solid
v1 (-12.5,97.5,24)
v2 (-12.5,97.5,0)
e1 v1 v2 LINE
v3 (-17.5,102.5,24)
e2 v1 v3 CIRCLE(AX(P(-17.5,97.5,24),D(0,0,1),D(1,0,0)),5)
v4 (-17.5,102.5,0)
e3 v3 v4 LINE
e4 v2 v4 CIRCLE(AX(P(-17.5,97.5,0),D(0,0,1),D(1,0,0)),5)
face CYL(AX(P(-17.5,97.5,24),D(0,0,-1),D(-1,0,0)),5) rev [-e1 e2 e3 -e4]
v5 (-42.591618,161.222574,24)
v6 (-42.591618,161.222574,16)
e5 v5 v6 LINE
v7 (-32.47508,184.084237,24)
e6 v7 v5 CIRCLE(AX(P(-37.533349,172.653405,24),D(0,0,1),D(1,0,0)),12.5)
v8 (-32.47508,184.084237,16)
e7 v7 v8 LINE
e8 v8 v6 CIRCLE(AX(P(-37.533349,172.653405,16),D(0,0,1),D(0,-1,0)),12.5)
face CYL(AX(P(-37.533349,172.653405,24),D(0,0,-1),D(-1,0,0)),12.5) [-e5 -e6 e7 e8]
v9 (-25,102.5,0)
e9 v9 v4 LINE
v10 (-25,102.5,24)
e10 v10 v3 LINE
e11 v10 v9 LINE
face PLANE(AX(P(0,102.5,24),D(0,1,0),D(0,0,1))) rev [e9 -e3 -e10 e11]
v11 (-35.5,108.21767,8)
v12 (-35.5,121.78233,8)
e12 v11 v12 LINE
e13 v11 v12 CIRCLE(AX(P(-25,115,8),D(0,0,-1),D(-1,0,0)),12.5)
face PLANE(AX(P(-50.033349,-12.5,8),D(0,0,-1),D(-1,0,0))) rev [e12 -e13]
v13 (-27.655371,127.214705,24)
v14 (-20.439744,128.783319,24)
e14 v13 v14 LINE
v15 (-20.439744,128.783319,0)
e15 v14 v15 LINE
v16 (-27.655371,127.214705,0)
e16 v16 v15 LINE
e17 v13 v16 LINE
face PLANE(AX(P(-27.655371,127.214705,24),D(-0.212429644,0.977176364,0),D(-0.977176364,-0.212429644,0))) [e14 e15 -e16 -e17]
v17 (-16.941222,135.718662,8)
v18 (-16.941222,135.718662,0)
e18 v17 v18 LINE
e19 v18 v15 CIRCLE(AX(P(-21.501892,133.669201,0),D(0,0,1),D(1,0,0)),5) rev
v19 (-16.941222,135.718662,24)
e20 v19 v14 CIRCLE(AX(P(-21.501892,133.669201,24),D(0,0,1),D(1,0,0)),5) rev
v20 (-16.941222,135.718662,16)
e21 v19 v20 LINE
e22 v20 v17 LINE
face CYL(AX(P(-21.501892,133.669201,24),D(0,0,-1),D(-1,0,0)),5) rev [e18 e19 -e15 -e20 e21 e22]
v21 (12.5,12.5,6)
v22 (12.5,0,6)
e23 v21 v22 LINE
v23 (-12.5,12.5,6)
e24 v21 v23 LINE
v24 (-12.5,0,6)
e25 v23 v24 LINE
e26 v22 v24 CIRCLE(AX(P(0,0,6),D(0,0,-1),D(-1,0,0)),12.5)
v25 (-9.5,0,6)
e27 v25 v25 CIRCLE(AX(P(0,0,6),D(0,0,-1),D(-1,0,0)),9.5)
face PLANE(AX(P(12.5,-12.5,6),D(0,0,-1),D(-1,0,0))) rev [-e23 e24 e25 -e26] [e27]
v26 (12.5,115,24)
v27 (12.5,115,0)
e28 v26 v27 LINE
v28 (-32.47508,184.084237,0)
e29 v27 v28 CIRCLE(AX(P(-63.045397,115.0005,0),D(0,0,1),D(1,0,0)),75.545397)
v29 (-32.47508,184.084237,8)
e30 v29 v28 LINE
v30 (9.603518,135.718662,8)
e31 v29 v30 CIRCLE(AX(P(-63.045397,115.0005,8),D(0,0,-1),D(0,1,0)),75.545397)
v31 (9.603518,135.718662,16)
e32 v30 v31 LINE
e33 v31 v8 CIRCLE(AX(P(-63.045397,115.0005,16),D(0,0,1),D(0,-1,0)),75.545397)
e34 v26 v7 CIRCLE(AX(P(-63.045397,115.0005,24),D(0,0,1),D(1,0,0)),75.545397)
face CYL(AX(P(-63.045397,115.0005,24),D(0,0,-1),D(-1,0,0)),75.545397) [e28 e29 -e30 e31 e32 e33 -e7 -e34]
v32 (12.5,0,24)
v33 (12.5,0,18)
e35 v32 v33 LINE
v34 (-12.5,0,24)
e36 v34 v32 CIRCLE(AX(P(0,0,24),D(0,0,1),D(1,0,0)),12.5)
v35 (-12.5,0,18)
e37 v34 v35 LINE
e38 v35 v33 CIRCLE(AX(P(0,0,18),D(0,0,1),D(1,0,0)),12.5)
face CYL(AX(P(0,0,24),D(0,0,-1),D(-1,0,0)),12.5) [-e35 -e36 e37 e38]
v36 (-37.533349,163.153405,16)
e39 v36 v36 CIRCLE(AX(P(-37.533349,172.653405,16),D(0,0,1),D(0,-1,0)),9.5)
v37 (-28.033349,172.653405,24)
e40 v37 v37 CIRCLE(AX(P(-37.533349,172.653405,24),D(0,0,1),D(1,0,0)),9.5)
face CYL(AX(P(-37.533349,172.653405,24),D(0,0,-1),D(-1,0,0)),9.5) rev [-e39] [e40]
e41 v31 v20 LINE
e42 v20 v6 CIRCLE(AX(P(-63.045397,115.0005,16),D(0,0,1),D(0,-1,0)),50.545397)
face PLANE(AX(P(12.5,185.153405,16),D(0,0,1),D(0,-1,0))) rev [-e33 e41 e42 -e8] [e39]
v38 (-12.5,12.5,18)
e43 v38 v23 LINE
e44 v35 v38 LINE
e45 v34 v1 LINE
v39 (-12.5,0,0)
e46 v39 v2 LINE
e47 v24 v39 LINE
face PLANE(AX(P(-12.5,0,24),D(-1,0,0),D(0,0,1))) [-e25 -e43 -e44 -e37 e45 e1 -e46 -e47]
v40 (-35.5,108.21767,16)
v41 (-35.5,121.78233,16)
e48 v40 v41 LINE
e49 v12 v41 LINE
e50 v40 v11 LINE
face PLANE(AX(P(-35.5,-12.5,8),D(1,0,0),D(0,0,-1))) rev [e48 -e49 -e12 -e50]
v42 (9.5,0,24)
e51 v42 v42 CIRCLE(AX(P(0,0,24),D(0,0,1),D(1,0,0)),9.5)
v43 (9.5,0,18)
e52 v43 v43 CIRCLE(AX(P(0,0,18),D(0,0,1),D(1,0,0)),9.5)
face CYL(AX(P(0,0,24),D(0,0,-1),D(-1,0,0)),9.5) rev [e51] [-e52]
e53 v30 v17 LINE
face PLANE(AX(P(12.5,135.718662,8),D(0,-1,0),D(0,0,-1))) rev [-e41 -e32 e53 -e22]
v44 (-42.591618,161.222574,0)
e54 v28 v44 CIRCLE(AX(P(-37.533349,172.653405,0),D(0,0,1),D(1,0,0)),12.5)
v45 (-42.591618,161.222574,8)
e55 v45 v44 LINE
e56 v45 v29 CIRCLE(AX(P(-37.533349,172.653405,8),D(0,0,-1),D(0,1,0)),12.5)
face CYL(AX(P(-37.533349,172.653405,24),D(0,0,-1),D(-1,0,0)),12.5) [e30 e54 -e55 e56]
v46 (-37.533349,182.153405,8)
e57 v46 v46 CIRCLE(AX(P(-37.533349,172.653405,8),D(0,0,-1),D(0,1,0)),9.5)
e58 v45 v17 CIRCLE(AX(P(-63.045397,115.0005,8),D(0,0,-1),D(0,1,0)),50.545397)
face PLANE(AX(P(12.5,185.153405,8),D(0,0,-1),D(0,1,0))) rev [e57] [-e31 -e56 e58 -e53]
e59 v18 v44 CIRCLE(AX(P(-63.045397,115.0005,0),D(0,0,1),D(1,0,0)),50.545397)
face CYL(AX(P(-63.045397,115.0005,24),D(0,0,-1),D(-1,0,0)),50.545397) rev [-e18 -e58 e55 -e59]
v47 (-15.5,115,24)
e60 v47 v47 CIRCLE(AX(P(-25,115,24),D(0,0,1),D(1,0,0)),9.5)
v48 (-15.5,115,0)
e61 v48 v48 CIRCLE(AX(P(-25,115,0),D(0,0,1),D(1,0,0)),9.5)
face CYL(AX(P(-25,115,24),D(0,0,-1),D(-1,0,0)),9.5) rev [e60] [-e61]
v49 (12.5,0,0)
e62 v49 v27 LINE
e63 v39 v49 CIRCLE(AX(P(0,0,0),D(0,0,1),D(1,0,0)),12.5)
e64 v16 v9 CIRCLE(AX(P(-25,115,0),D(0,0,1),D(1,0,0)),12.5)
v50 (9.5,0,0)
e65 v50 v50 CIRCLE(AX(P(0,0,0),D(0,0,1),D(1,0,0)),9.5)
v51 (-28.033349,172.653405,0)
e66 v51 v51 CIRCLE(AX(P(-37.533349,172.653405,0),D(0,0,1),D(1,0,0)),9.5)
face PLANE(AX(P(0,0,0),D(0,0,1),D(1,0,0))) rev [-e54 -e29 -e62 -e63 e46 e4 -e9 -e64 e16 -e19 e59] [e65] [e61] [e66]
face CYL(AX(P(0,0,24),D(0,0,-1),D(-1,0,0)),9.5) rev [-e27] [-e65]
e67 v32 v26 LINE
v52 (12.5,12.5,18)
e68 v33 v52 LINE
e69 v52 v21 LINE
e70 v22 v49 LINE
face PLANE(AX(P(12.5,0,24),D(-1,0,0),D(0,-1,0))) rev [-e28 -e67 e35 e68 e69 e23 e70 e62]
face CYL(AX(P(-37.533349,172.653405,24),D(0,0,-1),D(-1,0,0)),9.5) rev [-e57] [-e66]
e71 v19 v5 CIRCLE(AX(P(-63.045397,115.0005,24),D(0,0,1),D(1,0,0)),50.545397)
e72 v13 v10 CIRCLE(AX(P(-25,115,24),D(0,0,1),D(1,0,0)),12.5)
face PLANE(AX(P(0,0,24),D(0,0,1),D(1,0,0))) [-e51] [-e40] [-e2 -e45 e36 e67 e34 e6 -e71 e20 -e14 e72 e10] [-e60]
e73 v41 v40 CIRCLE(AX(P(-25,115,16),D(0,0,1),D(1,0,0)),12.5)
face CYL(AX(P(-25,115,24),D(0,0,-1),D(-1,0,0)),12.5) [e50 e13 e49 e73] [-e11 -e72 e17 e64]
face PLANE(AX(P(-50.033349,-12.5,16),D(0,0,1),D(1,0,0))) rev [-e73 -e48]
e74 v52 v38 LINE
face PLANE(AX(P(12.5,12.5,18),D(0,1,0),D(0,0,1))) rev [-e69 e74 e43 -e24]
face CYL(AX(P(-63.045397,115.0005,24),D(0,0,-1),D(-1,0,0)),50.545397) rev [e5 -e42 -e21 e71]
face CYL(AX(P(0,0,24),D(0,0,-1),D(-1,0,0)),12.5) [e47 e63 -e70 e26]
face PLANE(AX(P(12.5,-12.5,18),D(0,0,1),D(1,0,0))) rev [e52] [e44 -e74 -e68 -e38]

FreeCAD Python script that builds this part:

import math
import FreeCAD as App
import Part
import Sketcher

doc = App.newDocument("Part")
body = doc.addObject("PartDesign::Body", "Body")

# Sketch on XY plane
sketch1 = body.newObject("Sketcher::SketchObject", "Sketch")
sketch1.AttachmentSupport = (doc.getObject("XY_Plane"), [""])
sketch1.MapMode = "FlatFace"
sketch1.addGeometry(Part.ArcOfCircle(Part.Circle(App.Vector(-38, 173, 0), App.Vector(0, 0, 1), 12), math.radians(66), math.radians(246)), False)
sketch1.addGeometry(Part.ArcOfCircle(Part.Circle(App.Vector(-63, 115, 0), App.Vector(0, 0, 1), 51), math.radians(24), math.radians(66)), False)
sketch1.addGeometry(Part.ArcOfCircle(Part.Circle(App.Vector(-22, 134, 0), App.Vector(0, 0, 1), 5), math.radians(-78), math.radians(24)), False)
sketch1.addGeometry(Part.LineSegment(App.Vector(-20, 129, 0), App.Vector(-28, 127, 0)), False)
sketch1.addGeometry(Part.ArcOfCircle(Part.Circle(App.Vector(-25, 115, 0), App.Vector(0, 0, 1), 12), math.radians(102), math.radians(270)), False)
sketch1.addGeometry(Part.LineSegment(App.Vector(-25, 102, 0), App.Vector(-18, 102, 0)), False)
sketch1.addGeometry(Part.ArcOfCircle(Part.Circle(App.Vector(-18, 98, 0), App.Vector(0, 0, 1), 5), math.radians(0), math.radians(90)), False)
sketch1.addGeometry(Part.LineSegment(App.Vector(-12, 98, 0), App.Vector(-12, 0, 0)), False)
sketch1.addGeometry(Part.ArcOfCircle(Part.Circle(App.Vector(0, 0, 0), App.Vector(0, 0, 1), 12), math.radians(180), math.radians(360)), False)
sketch1.addGeometry(Part.LineSegment(App.Vector(12, 0, 0), App.Vector(12, 115, 0)), False)
sketch1.addGeometry(Part.ArcOfCircle(Part.Circle(App.Vector(-63, 115, 0), App.Vector(0, 0, 1), 76), math.radians(0), math.radians(66)), False)
sketch1.addGeometry(Part.Circle(App.Vector(-38, 173, 0), App.Vector(0, 0, 1), 10), False)
sketch1.addGeometry(Part.Circle(App.Vector(0, 0, 0), App.Vector(0, 0, 1), 10), False)
sketch1.addGeometry(Part.Circle(App.Vector(-25, 115, 0), App.Vector(0, 0, 1), 10), False)
sketch1.addConstraint(Sketcher.Constraint("Tangent", 0, 2, 1, 2))
sketch1.addConstraint(Sketcher.Constraint("Tangent", 1, 1, 2, 2))
sketch1.addConstraint(Sketcher.Constraint("Tangent", 2, 1, 3, 1))
sketch1.addConstraint(Sketcher.Constraint("Tangent", 3, 2, 4, 1))
sketch1.addConstraint(Sketcher.Constraint("Tangent", 4, 2, 5, 1))
sketch1.addConstraint(Sketcher.Constraint("Tangent", 5, 2, 6, 2))
sketch1.addConstraint(Sketcher.Constraint("Tangent", 6, 1, 7, 1))
sketch1.addConstraint(Sketcher.Constraint("Tangent", 7, 2, 8, 1))
sketch1.addConstraint(Sketcher.Constraint("Tangent", 8, 2, 9, 1))
sketch1.addConstraint(Sketcher.Constraint("Coincident", 9, 2, 10, 1))
sketch1.addConstraint(Sketcher.Constraint("Tangent", 10, 2, 0, 1))
sketch1.addConstraint(Sketcher.Constraint("Horizontal", 5))
sketch1.addConstraint(Sketcher.Constraint("Vertical", 7))
sketch1.addConstraint(Sketcher.Constraint("Vertical", 9))
sketch1.addConstraint(Sketcher.Constraint("Coincident", 8, 3, -1, 1))
sketch1.addConstraint(Sketcher.Constraint("Coincident", 12, 3, -1, 1))
sketch1.addConstraint(Sketcher.Constraint("Coincident", 10, 3, 1, 3))
sketch1.addConstraint(Sketcher.Constraint("Coincident", 11, 3, 0, 3))
sketch1.addConstraint(Sketcher.Constraint("Coincident", 13, 3, 4, 3))
sketch1.addConstraint(Sketcher.Constraint("Equal", 0, 4))
sketch1.addConstraint(Sketcher.Constraint("Equal", 2, 6))
sketch1.addConstraint(Sketcher.Constraint("Equal", 4, 8))
sketch1.addConstraint(Sketcher.Constraint("Equal", 11, 12))
sketch1.addConstraint(Sketcher.Constraint("Equal", 12, 13))
sketch1.addConstraint(Sketcher.Constraint("Horizontal", 13, 3, 9, 2))
sketch1.addConstraint(Sketcher.Constraint("Diameter", 11, 19.0))
sketch1.addConstraint(Sketcher.Constraint("Radius", 2, 5.0))
sketch1.addConstraint(Sketcher.Constraint("Radius", 0, 12.5))
sketch1.addConstraint(Sketcher.Constraint("DistanceY", 9, 1, 9, 2, 115.0))
sketch1.addConstraint(Sketcher.Constraint("DistanceX", 5, 1, 5, 2, 7.5))
sketch1.addConstraint(Sketcher.Constraint("Radius", 1, 50.545397))
sketch1.addConstraint(Sketcher.Constraint("DistanceY", -1, 1, 1, 3, 115.0005))
sketch1.addConstraint(Sketcher.Constraint("DistanceY", -1, 1, 2, 3, 133.669201))
sketch1.addConstraint(Sketcher.Constraint("DistanceX", 0, 3, -1, 1, 37.533349))
pad1 = body.newObject("PartDesign::Pad", "Pad")
pad1.Profile = sketch1
pad1.Length = 24

# Sketch on YZ plane
sketch2 = body.newObject("Sketcher::SketchObject", "Sketch001")
sketch2.AttachmentSupport = (doc.getObject("YZ_Plane"), [""])
sketch2.MapMode = "FlatFace"
sketch2.AttachmentOffset = App.Placement(App.Vector(0, 0, -12.5), App.Rotation())
sketch2.addGeometry(Part.LineSegment(App.Vector(185, 8, 0), App.Vector(136, 8, 0)), False)
sketch2.addGeometry(Part.LineSegment(App.Vector(136, 8, 0), App.Vector(136, 16, 0)), False)
sketch2.addGeometry(Part.LineSegment(App.Vector(136, 16, 0), App.Vector(185, 16, 0)), False)
sketch2.addGeometry(Part.LineSegment(App.Vector(185, 16, 0), App.Vector(185, 8, 0)), False)
sketch2.addConstraint(Sketcher.Constraint("Coincident", 0, 2, 1, 1))
sketch2.addConstraint(Sketcher.Constraint("Coincident", 1, 2, 2, 1))
sketch2.addConstraint(Sketcher.Constraint("Coincident", 2, 2, 3, 1))
sketch2.addConstraint(Sketcher.Constraint("Coincident", 3, 2, 0, 1))
sketch2.addConstraint(Sketcher.Constraint("Horizontal", 0))
sketch2.addConstraint(Sketcher.Constraint("Vertical", 1))
sketch2.addConstraint(Sketcher.Constraint("Horizontal", 2))
sketch2.addConstraint(Sketcher.Constraint("Vertical", 3))
sketch2.addConstraint(Sketcher.Constraint("DistanceY", 1, 1, 1, 2, 8.0))
sketch2.addConstraint(Sketcher.Constraint("DistanceY", -1, 1, 0, 2, 8.0))
sketch2.addConstraint(Sketcher.Constraint("DistanceX", 0, 2, 0, 1, 49.434744))
sketch2.addConstraint(Sketcher.Constraint("DistanceX", -1, 1, 0, 2, 135.718662))
pocket1 = body.newObject("PartDesign::Pocket", "Pocket")
pocket1.Profile = sketch2
pocket1.Type = "ThroughAll"
pocket1.Midplane = True

# Sketch on YZ plane
sketch3 = body.newObject("Sketcher::SketchObject", "Sketch002")
sketch3.AttachmentSupport = (doc.getObject("YZ_Plane"), [""])
sketch3.MapMode = "FlatFace"
sketch3.AttachmentOffset = App.Placement(App.Vector(0, 0, -12.5), App.Rotation())
sketch3.addGeometry(Part.LineSegment(App.Vector(12, 6, 0), App.Vector(-12, 6, 0)), False)
sketch3.addGeometry(Part.LineSegment(App.Vector(-12, 6, 0), App.Vector(-12, 18, 0)), False)
sketch3.addGeometry(Part.LineSegment(App.Vector(-12, 18, 0), App.Vector(12, 18, 0)), False)
sketch3.addGeometry(Part.LineSegment(App.Vector(12, 18, 0), App.Vector(12, 6, 0)), False)
sketch3.addConstraint(Sketcher.Constraint("Coincident", 0, 2, 1, 1))
sketch3.addConstraint(Sketcher.Constraint("Coincident", 1, 2, 2, 1))
sketch3.addConstraint(Sketcher.Constraint("Coincident", 2, 2, 3, 1))
sketch3.addConstraint(Sketcher.Constraint("Coincident", 3, 2, 0, 1))
sketch3.addConstraint(Sketcher.Constraint("Horizontal", 0))
sketch3.addConstraint(Sketcher.Constraint("Vertical", 1))
sketch3.addConstraint(Sketcher.Constraint("Horizontal", 2))
sketch3.addConstraint(Sketcher.Constraint("Vertical", 3))
sketch3.addConstraint(Sketcher.Constraint("DistanceX", 0, 2, 0, 1, 25.0))
sketch3.addConstraint(Sketcher.Constraint("DistanceY", 1, 1, 1, 2, 12.0))
sketch3.addConstraint(Sketcher.Constraint("DistanceY", -1, 1, 0, 2, 6.0))
sketch3.addConstraint(Sketcher.Constraint("DistanceX", 0, 2, -1, 1, 12.5))
pocket2 = body.newObject("PartDesign::Pocket", "Pocket001")
pocket2.Profile = sketch3
pocket2.Type = "ThroughAll"
pocket2.Midplane = True

# Sketch on XZ plane
sketch4 = body.newObject("Sketcher::SketchObject", "Sketch003")
sketch4.AttachmentSupport = (doc.getObject("XZ_Plane"), [""])
sketch4.MapMode = "FlatFace"
sketch4.AttachmentOffset = App.Placement(App.Vector(0, 0, -135.718662), App.Rotation())
sketch4.addGeometry(Part.LineSegment(App.Vector(-50, 8, 0), App.Vector(-50, 16, 0)), False)
sketch4.addGeometry(Part.LineSegment(App.Vector(-50, 16, 0), App.Vector(-36, 16, 0)), False)
sketch4.addGeometry(Part.LineSegment(App.Vector(-36, 16, 0), App.Vector(-36, 8, 0)), False)
sketch4.addGeometry(Part.LineSegment(App.Vector(-36, 8, 0), App.Vector(-50, 8, 0)), False)
sketch4.addConstraint(Sketcher.Constraint("Coincident", 0, 2, 1, 1))
sketch4.addConstraint(Sketcher.Constraint("Coincident", 1, 2, 2, 1))
sketch4.addConstraint(Sketcher.Constraint("Coincident", 2, 2, 3, 1))
sketch4.addConstraint(Sketcher.Constraint("Coincident", 3, 2, 0, 1))
sketch4.addConstraint(Sketcher.Constraint("Vertical", 0))
sketch4.addConstraint(Sketcher.Constraint("Horizontal", 1))
sketch4.addConstraint(Sketcher.Constraint("Vertical", 2))
sketch4.addConstraint(Sketcher.Constraint("Horizontal", 3))
sketch4.addConstraint(Sketcher.Constraint("DistanceY", 0, 1, 0, 2, 8.0))
sketch4.addConstraint(Sketcher.Constraint("DistanceY", -1, 1, 0, 2, 16.0))
sketch4.addConstraint(Sketcher.Constraint("DistanceX", 1, 2, -1, 1, 35.5))
sketch4.addConstraint(Sketcher.Constraint("DistanceX", 1, 1, 1, 2, 14.533349))
pocket3 = body.newObject("PartDesign::Pocket", "Pocket002")
pocket3.Profile = sketch4
pocket3.Type = "ThroughAll"
pocket3.Midplane = True

doc.recompute()
